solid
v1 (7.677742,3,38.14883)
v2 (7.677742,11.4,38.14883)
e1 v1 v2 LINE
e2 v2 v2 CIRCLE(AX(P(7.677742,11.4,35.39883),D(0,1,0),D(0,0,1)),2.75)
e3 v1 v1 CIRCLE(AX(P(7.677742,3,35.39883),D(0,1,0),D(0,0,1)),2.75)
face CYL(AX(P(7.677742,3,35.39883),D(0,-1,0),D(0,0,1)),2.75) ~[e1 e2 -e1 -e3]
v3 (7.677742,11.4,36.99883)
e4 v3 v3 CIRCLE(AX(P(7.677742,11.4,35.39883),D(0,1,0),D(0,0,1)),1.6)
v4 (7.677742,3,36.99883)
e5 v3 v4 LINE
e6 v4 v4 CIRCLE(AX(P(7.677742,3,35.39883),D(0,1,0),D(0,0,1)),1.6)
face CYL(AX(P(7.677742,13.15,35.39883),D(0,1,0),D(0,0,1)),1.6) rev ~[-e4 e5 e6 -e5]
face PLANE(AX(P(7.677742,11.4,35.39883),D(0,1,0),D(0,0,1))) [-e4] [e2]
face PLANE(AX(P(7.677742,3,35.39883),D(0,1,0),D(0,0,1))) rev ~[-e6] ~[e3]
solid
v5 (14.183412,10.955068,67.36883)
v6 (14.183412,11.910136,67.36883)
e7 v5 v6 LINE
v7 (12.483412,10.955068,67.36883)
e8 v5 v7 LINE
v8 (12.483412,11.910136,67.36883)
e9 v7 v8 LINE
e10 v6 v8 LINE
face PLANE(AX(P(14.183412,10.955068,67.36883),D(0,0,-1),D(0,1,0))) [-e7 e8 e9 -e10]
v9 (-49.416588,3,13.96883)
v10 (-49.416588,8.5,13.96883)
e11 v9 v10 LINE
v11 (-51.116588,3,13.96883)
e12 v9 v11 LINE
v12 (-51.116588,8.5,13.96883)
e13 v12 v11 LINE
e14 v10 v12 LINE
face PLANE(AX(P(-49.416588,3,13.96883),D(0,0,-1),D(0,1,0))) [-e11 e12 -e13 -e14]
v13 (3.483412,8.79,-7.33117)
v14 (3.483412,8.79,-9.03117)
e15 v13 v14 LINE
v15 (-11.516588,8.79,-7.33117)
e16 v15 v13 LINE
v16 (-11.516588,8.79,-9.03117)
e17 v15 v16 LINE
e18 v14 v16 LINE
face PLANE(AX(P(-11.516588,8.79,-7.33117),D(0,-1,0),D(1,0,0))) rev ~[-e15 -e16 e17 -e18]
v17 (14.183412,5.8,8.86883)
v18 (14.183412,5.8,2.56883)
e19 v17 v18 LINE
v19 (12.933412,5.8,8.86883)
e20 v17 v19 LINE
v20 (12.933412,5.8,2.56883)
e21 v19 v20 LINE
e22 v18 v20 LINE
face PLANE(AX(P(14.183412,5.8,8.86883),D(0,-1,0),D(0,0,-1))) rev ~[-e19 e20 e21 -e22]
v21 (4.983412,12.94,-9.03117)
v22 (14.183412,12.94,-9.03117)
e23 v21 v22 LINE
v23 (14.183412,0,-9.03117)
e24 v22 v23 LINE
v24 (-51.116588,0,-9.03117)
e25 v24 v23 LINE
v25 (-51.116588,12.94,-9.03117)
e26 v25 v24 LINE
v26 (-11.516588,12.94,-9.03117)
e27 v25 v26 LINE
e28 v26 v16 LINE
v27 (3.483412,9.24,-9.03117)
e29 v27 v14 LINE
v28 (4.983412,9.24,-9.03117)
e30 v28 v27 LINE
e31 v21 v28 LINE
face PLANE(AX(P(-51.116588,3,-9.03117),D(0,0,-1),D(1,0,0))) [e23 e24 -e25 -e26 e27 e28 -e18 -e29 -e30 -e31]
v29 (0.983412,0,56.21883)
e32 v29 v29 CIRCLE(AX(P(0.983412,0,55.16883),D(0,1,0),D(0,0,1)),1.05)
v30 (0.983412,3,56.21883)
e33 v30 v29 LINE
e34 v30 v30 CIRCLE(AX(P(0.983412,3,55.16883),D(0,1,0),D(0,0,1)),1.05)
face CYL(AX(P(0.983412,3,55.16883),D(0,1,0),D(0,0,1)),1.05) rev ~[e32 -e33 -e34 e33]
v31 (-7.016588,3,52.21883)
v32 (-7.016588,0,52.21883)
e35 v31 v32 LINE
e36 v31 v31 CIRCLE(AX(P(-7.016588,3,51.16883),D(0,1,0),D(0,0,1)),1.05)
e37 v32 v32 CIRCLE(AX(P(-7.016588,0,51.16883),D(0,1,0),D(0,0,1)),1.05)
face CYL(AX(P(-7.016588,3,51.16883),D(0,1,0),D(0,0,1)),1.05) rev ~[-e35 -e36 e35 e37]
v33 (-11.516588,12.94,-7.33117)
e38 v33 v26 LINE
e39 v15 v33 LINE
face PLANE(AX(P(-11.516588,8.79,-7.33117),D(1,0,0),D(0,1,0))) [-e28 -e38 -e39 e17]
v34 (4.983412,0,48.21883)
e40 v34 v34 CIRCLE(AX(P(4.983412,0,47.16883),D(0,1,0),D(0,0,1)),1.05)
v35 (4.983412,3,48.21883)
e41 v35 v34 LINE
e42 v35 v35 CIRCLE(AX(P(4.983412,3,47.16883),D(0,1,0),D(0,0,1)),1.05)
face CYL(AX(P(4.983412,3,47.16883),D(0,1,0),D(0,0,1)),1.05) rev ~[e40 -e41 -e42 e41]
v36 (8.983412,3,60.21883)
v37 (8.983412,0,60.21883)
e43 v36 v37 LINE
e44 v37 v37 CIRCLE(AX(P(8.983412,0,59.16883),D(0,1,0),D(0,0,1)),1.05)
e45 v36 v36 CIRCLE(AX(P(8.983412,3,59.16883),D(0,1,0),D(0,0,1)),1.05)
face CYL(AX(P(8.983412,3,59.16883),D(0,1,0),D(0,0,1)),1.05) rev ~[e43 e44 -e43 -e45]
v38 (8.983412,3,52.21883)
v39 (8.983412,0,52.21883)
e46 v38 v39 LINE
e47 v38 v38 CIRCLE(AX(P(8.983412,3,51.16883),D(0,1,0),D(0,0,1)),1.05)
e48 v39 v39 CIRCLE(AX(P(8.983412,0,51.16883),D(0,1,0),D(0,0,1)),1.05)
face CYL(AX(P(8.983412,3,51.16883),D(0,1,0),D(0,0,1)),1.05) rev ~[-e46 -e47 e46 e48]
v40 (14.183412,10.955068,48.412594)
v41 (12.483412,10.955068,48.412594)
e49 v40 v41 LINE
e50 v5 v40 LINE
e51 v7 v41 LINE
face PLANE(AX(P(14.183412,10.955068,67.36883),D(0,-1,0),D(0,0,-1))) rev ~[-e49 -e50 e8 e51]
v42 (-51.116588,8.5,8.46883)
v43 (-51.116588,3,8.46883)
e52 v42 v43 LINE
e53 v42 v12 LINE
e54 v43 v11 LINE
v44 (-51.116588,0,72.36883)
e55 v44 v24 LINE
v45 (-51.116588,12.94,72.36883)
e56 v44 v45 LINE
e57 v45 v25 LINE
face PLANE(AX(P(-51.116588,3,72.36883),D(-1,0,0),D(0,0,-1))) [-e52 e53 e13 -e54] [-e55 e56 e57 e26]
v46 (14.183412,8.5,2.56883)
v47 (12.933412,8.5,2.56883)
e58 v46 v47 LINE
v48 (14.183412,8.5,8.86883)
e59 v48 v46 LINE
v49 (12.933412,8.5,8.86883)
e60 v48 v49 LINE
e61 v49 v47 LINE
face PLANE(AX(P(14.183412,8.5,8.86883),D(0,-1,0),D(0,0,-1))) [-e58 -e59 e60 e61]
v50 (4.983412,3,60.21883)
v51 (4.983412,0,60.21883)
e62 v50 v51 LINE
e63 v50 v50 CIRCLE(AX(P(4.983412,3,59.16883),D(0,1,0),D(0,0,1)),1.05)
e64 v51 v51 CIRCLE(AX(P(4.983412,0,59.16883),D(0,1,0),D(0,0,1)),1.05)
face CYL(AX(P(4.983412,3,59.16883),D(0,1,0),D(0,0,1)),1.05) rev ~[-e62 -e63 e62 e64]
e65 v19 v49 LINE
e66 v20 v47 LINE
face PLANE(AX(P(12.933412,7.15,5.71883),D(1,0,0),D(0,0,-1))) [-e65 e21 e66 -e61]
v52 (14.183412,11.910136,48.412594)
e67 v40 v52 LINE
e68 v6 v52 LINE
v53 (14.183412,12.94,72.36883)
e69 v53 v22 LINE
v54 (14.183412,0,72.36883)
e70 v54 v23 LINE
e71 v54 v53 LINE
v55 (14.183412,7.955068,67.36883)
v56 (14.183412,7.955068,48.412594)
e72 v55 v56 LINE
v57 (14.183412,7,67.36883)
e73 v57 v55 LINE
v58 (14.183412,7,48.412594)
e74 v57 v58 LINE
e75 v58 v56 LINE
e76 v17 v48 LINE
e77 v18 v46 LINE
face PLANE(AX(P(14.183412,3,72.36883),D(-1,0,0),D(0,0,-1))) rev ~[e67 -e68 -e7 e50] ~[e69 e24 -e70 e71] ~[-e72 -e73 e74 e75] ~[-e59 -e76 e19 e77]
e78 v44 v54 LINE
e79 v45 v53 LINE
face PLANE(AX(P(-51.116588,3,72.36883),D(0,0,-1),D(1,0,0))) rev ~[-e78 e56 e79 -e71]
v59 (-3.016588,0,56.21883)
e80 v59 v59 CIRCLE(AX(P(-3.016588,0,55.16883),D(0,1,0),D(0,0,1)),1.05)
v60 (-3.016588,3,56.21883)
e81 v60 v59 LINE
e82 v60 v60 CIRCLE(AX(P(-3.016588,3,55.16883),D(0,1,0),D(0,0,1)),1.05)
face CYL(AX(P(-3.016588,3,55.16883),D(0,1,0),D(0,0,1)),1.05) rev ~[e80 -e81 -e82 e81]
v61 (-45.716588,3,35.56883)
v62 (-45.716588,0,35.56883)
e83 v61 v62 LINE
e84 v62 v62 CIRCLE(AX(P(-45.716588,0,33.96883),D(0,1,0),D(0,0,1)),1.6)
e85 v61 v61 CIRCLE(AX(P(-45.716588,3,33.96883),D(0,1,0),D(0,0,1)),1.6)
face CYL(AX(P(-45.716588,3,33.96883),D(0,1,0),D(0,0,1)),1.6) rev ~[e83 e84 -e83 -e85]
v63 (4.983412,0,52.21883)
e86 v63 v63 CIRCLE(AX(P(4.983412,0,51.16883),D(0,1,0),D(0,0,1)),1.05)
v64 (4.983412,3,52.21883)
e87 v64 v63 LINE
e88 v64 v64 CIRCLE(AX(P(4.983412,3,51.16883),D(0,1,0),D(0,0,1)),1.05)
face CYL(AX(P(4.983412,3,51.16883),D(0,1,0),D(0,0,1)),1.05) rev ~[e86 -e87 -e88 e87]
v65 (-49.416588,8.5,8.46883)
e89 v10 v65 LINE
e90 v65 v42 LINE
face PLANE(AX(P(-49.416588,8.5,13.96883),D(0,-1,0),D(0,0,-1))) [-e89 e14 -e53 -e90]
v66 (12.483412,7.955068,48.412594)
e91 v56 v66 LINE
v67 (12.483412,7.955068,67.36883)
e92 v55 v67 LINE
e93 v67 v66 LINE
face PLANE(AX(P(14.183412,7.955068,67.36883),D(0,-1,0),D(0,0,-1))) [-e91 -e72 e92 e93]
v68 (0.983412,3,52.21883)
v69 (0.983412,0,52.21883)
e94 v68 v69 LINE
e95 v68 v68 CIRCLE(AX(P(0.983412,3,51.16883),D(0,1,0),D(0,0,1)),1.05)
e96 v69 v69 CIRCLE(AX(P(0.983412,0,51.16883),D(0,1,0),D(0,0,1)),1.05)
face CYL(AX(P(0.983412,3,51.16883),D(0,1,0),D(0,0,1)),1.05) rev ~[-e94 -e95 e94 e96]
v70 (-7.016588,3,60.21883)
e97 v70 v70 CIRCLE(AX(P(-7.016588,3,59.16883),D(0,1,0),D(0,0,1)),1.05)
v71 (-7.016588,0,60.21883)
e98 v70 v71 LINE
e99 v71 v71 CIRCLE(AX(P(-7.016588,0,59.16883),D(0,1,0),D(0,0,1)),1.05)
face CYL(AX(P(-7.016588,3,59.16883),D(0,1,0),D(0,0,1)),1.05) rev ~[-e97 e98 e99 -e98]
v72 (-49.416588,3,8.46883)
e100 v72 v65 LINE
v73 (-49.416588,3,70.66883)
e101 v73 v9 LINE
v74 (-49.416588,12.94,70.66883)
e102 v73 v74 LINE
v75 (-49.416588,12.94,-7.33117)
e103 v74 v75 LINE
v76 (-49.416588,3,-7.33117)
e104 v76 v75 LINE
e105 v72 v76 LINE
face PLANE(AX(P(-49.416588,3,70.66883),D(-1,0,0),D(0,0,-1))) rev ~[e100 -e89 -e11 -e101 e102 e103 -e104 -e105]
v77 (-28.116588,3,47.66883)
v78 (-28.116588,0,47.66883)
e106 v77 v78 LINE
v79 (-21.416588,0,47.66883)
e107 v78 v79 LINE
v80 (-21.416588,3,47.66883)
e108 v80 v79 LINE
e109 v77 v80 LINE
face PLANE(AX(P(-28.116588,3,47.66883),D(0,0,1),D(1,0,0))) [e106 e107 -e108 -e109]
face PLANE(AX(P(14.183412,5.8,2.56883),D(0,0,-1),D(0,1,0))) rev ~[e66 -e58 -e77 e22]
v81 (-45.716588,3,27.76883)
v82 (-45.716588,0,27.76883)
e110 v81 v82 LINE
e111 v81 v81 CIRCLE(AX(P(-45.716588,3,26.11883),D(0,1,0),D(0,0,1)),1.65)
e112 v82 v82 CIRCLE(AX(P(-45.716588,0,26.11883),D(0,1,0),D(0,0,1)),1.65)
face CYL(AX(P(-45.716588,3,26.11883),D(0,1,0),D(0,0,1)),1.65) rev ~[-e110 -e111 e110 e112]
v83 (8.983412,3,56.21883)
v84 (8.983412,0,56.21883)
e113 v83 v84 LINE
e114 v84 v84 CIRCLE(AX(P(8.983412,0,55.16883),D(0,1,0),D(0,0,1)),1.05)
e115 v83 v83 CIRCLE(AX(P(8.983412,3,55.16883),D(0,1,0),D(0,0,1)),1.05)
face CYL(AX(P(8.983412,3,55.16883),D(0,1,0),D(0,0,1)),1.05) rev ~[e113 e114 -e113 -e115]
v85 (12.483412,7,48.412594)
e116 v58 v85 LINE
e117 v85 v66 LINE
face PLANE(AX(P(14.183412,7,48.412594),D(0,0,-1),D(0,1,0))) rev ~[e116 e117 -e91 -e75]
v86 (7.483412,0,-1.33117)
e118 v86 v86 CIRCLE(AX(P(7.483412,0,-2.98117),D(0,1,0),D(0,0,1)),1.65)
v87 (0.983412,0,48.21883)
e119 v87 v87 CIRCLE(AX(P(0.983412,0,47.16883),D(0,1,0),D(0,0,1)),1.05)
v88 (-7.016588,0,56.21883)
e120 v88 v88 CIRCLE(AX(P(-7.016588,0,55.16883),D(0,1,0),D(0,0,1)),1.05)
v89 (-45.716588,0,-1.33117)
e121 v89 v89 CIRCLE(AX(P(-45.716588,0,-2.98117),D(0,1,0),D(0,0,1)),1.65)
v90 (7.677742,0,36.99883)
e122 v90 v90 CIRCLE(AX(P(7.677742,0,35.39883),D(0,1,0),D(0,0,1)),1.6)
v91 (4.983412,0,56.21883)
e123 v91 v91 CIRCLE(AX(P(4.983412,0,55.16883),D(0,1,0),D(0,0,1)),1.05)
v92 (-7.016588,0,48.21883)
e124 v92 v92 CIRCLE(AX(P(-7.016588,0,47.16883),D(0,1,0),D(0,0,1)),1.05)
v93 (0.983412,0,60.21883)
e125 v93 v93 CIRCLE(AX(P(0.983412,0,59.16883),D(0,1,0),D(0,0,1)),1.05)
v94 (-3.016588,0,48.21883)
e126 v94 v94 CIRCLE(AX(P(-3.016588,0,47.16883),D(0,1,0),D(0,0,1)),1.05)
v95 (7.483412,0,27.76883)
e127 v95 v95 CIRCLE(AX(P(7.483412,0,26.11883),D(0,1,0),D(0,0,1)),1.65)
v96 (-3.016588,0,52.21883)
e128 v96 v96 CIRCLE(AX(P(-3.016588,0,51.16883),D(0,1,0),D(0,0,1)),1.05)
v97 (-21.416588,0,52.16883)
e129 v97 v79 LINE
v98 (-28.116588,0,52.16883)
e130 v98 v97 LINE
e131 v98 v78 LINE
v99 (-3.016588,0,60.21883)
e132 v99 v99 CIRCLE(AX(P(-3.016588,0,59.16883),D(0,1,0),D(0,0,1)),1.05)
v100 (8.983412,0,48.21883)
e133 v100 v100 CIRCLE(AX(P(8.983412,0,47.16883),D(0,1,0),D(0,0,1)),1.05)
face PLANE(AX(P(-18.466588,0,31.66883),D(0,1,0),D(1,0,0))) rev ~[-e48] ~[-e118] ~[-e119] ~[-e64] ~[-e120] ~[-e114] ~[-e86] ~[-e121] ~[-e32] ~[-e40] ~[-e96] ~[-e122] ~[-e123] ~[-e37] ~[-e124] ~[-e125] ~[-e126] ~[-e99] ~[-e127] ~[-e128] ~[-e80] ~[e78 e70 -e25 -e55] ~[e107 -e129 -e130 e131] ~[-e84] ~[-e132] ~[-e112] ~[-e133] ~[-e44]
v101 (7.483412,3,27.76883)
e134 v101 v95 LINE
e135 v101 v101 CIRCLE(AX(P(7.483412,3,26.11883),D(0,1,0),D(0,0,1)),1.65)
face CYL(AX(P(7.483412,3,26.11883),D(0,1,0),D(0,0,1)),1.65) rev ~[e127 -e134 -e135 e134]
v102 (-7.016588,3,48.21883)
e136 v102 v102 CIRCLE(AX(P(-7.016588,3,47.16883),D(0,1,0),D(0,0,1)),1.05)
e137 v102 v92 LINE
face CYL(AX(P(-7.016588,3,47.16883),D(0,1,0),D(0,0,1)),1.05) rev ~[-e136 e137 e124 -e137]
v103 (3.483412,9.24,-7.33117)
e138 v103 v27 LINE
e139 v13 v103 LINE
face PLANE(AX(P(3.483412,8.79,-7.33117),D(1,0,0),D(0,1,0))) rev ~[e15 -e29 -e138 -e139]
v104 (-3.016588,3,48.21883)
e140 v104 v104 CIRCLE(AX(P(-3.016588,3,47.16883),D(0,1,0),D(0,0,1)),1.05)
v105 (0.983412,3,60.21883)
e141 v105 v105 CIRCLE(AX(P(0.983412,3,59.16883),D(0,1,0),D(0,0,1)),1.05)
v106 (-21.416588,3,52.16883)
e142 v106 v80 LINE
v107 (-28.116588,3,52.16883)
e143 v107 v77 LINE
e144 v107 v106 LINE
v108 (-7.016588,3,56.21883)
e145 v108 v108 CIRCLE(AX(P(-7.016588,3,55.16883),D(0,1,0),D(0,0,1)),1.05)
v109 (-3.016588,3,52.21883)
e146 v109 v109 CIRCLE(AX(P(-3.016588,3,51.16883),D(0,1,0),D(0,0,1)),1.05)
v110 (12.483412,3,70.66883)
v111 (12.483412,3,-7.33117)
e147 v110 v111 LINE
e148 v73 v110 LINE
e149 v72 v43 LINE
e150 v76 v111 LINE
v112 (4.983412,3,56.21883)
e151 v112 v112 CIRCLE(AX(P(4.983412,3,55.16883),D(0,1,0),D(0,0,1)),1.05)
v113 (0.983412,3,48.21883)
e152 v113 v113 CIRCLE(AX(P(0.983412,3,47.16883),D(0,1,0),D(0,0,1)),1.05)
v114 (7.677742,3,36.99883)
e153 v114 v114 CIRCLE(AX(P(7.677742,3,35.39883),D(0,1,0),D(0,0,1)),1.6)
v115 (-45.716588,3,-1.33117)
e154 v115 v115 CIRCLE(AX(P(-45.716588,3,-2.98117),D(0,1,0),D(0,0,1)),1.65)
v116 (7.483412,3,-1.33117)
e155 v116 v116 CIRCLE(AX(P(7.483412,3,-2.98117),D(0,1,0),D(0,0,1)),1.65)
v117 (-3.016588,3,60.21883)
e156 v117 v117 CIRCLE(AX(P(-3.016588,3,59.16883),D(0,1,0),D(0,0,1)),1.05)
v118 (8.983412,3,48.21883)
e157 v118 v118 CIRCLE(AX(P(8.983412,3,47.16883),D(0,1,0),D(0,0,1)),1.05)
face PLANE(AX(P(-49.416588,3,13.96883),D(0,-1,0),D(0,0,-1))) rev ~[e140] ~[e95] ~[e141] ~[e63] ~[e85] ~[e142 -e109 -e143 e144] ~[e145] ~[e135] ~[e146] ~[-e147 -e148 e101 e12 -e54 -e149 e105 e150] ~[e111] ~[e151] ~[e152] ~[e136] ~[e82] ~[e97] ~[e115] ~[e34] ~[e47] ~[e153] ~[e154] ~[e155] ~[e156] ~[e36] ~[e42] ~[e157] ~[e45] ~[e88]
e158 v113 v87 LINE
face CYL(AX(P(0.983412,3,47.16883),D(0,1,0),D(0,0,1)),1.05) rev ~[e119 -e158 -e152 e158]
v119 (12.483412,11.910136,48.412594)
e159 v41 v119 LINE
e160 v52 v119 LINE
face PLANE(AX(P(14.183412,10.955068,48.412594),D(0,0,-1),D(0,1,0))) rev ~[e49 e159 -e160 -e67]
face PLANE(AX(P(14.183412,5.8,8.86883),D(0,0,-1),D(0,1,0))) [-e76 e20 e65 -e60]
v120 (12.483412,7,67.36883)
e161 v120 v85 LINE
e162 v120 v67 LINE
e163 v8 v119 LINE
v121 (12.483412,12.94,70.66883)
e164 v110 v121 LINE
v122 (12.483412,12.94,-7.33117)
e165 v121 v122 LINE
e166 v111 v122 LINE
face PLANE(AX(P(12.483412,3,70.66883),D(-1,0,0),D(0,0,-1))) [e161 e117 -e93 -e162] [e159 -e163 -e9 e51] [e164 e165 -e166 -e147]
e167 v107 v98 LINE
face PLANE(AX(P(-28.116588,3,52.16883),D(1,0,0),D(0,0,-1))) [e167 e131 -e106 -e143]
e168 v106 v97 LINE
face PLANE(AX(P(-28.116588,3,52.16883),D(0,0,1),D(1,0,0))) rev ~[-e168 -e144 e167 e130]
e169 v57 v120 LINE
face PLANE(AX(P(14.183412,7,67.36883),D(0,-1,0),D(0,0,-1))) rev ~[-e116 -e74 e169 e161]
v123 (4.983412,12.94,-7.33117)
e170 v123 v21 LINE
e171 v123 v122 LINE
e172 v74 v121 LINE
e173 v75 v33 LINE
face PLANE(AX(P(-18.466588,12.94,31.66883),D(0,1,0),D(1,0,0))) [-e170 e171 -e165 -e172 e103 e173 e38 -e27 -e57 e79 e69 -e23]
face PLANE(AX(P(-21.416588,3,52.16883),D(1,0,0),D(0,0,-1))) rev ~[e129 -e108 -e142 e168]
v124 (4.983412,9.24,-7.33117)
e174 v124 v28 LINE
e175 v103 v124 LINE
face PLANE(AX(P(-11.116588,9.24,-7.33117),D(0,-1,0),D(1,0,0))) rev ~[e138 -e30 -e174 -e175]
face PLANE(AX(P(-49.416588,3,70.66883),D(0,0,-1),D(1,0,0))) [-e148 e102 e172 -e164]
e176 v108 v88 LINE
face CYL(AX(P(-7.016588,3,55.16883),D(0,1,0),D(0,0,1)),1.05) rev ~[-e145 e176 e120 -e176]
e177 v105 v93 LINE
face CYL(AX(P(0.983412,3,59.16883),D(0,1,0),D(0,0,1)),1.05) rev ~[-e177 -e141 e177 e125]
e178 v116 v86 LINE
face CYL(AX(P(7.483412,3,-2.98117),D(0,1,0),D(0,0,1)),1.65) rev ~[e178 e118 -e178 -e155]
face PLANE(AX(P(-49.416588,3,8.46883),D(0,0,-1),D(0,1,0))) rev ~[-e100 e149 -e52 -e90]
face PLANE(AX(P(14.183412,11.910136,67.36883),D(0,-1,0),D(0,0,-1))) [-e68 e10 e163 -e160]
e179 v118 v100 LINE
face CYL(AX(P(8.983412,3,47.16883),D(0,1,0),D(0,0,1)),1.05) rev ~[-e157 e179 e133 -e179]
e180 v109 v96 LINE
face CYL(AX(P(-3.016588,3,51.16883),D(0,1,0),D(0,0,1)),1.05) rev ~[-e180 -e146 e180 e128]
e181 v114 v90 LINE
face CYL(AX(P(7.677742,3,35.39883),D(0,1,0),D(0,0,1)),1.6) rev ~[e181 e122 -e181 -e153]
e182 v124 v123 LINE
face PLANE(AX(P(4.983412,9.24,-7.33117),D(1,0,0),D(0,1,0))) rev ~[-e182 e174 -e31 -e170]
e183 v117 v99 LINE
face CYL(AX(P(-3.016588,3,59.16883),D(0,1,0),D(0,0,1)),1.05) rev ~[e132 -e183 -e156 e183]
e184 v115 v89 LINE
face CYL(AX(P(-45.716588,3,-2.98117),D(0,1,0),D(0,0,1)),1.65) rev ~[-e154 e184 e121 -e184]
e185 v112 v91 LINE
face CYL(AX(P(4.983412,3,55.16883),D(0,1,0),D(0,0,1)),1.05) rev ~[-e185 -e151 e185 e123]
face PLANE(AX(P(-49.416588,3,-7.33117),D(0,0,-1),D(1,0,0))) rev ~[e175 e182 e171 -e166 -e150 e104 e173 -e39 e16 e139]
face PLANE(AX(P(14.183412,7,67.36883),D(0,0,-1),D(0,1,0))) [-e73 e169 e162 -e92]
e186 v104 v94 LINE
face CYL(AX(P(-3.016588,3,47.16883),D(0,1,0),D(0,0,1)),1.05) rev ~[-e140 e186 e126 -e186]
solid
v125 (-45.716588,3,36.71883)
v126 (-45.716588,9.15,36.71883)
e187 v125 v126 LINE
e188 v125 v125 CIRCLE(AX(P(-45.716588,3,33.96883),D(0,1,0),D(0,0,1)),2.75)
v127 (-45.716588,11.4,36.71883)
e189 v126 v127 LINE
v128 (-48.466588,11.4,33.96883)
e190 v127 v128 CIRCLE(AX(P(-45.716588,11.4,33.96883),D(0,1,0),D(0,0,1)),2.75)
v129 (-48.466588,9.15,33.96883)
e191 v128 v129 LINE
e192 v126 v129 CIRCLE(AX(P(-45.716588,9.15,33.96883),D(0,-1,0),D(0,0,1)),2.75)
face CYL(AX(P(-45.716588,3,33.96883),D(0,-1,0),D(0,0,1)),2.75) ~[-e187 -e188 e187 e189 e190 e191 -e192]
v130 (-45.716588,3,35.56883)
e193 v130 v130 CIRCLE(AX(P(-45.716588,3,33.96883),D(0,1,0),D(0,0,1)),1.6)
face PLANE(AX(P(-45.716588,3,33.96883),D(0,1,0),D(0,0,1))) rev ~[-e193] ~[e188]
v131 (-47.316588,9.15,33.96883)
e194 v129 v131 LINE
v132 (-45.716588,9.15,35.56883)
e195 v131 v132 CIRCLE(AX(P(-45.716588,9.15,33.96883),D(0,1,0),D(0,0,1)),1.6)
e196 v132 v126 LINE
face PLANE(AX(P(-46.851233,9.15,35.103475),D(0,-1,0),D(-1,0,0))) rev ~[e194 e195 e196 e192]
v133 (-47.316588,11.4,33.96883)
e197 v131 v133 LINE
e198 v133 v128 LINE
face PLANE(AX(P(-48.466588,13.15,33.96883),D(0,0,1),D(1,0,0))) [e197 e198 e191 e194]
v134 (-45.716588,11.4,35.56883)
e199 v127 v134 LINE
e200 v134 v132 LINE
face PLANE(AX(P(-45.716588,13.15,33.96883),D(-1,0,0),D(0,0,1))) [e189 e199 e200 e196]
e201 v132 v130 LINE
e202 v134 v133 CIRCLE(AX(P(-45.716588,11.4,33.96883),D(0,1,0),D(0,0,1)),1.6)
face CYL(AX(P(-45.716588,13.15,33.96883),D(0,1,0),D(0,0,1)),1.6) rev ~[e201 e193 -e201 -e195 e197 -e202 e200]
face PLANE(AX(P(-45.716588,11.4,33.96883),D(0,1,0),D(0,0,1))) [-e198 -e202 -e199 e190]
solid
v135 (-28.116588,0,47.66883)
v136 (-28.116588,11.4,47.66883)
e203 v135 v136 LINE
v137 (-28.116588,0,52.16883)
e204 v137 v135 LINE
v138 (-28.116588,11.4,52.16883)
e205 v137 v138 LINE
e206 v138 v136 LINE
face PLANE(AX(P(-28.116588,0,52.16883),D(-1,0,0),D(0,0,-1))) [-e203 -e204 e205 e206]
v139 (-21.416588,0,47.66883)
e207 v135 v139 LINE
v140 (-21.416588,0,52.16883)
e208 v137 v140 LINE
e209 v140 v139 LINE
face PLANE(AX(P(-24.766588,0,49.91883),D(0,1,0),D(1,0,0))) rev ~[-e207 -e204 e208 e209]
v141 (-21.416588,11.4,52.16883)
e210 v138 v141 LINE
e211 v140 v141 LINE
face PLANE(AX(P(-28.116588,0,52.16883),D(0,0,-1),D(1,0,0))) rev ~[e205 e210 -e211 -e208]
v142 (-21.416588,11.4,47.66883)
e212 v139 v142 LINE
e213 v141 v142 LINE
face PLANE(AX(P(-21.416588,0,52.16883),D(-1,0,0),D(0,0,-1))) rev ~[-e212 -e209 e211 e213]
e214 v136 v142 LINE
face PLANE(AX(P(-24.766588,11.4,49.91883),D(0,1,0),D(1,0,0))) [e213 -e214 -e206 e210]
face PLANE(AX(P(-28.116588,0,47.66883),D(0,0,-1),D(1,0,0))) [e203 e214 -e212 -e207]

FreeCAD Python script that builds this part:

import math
import FreeCAD as App
import Part
import Sketcher


def add_polygon(sketch, points):
    """Adds a closed chain of lines whose ends are joined by coincident constraints."""
    first, n = sketch.GeometryCount, len(points)
    for a, b in zip(points, points[1:] + points[:1]):
        sketch.addGeometry(Part.LineSegment(App.Vector(*a, 0), App.Vector(*b, 0)), False)
    for i in range(n):
        sketch.addConstraint(Sketcher.Constraint("Coincident", first + i, 2, first + (i + 1) % n, 1))

doc = App.newDocument("Part")
body = doc.addObject("PartDesign::Body", "Body")

# Sketch on XZ plane
sketch1 = doc.addObject("Sketcher::SketchObject", "Sketch")
body.addObject(sketch1)
sketch1.AttachmentSupport = (doc.XZ_Plane, [""])
sketch1.MapMode = "FlatFace"
add_polygon(sketch1, [(-51.116588, -9.03117), (-51.116588, 72.36883), (14.183412, 72.36883), (14.183412, -9.03117)])  # lines 0-3
sketch1.addConstraint([
    Sketcher.Constraint("Vertical", 0),
    Sketcher.Constraint("Horizontal", 1),
    Sketcher.Constraint("Vertical", 2),
    Sketcher.Constraint("Horizontal", 3),
    Sketcher.Constraint("DistanceX", 1, 1, 1, 2, 65.3),
    Sketcher.Constraint("DistanceY", 0, 1, 0, 2, 81.4),
    Sketcher.Constraint("DistanceX", 0, 2, -1, 1, 51.116588),
    Sketcher.Constraint("DistanceY", -1, 1, 0, 2, 72.36883),
])
pad1 = doc.addObject("PartDesign::Pad", "Pad")
body.addObject(pad1)
pad1.Profile = sketch1
pad1.Length = 3
pad1.Reversed = True

# Sketch on XZ plane
sketch2 = doc.addObject("Sketcher::SketchObject", "Sketch001")
body.addObject(sketch2)
sketch2.AttachmentSupport = (doc.XZ_Plane, [""])
sketch2.MapMode = "FlatFace"
sketch2.AttachmentOffset = App.Placement(App.Vector(0, 0, -3), App.Rotation())
add_polygon(sketch2, [(-51.116588, -9.03117), (-51.116588, 72.36883), (14.183412, 72.36883), (14.183412, -9.03117)])  # lines 0-3
add_polygon(sketch2, [(12.483412, 70.66883), (-49.416588, 70.66883), (-49.416588, -7.33117), (12.483412, -7.33117)])  # lines 4-7
sketch2.addConstraint([
    Sketcher.Constraint("Vertical", 0),
    Sketcher.Constraint("Horizontal", 1),
    Sketcher.Constraint("Vertical", 2),
    Sketcher.Constraint("Horizontal", 3),
    Sketcher.Constraint("Horizontal", 4),
    Sketcher.Constraint("Vertical", 5),
    Sketcher.Constraint("Horizontal", 6),
    Sketcher.Constraint("Vertical", 7),
    Sketcher.Constraint("DistanceY", 5, 2, 5, 1, 78.0),
    Sketcher.Constraint("DistanceX", 1, 1, 1, 2, 65.3),
    Sketcher.Constraint("DistanceX", 4, 2, 4, 1, 61.9),
    Sketcher.Constraint("DistanceY", 0, 1, 0, 2, 81.4),
    Sketcher.Constraint("DistanceX", 0, 2, 4, 2, 1.7),
    Sketcher.Constraint("DistanceY", 4, 2, 0, 2, 1.7),
    Sketcher.Constraint("DistanceX", 0, 2, -1, 1, 51.116588),
    Sketcher.Constraint("DistanceY", -1, 1, 0, 2, 72.36883),
])
pad2 = doc.addObject("PartDesign::Pad", "Pad001")
body.addObject(pad2)
pad2.Profile = sketch2
pad2.Length = 9.94
pad2.Reversed = True

# Sketch on XZ plane
sketch3 = doc.addObject("Sketcher::SketchObject", "Sketch002")
body.addObject(sketch3)
sketch3.AttachmentSupport = (doc.XZ_Plane, [""])
sketch3.MapMode = "FlatFace"
sketch3.AttachmentOffset = App.Placement(App.Vector(0, 0, -3), App.Rotation())
sketch3.addGeometry(Part.Circle(App.Vector(-45.716588, -2.98117, 0), App.Vector(0, 0, 1), 1.65), False)  # 0
sketch3.addGeometry(Part.Circle(App.Vector(-45.716588, 26.11883, 0), App.Vector(0, 0, 1), 1.65), False)  # 1
sketch3.addGeometry(Part.Circle(App.Vector(7.483412, -2.98117, 0), App.Vector(0, 0, 1), 1.65), False)  # 2
sketch3.addGeometry(Part.Circle(App.Vector(7.483412, 26.11883, 0), App.Vector(0, 0, 1), 1.65), False)  # 3
sketch3.addGeometry(Part.Circle(App.Vector(-45.716588, 33.96883, 0), App.Vector(0, 0, 1), 1.6), False)  # 4
sketch3.addGeometry(Part.Circle(App.Vector(7.677742, 35.39883, 0), App.Vector(0, 0, 1), 1.6), False)  # 5
add_polygon(sketch3, [(-28.116588, 47.66883), (-28.116588, 52.16883), (-21.416588, 52.16883), (-21.416588, 47.66883)])  # lines 6-9
sketch3.addConstraint([
    Sketcher.Constraint("Vertical", 6),
    Sketcher.Constraint("Horizontal", 7),
    Sketcher.Constraint("Vertical", 8),
    Sketcher.Constraint("Horizontal", 9),
    Sketcher.Constraint("Equal", 0, 1),
    Sketcher.Constraint("Equal", 1, 2),
    Sketcher.Constraint("Equal", 2, 3),
    Sketcher.Constraint("Equal", 4, 5),
    Sketcher.Constraint("Horizontal", 0, 3, 2, 3),
    Sketcher.Constraint("Horizontal", 1, 3, 3, 3),
    Sketcher.Constraint("Vertical", 0, 3, 1, 3),
    Sketcher.Constraint("Vertical", 2, 3, 3, 3),
    Sketcher.Constraint("Vertical", 1, 3, 4, 3),
    Sketcher.Constraint("Diameter", 0, 3.3),
    Sketcher.Constraint("Diameter", 4, 3.2),
    Sketcher.Constraint("DistanceX", 7, 1, 7, 2, 6.7),
    Sketcher.Constraint("DistanceY", 6, 1, 6, 2, 4.5),
    Sketcher.Constraint("DistanceY", 0, 3, 1, 3, 29.1),
    Sketcher.Constraint("DistanceX", 0, 3, 2, 3, 53.2),
    Sketcher.Constraint("DistanceX", 4, 3, 6, 2, 17.6),
    Sketcher.Constraint("DistanceY", 4, 3, 6, 2, 18.2),
    Sketcher.Constraint("DistanceY", 1, 3, 4, 3, 7.85),
    Sketcher.Constraint("DistanceY", 3, 3, 5, 3, 9.28),
    Sketcher.Constraint("DistanceX", 0, 3, -1, 1, 45.716588),
    Sketcher.Constraint("DistanceY", 0, 3, -1, 1, 2.98117),
    Sketcher.Constraint("DistanceX", 3, 3, 5, 3, 0.19433),
])
pocket1 = doc.addObject("PartDesign::Pocket", "Pocket")
body.addObject(pocket1)
pocket1.Profile = sketch3
pocket1.Type = "ThroughAll"
pocket1.Reversed = True

# Sketch on YZ plane
sketch4 = doc.addObject("Sketcher::SketchObject", "Sketch003")
body.addObject(sketch4)
sketch4.AttachmentSupport = (doc.YZ_Plane, [""])
sketch4.MapMode = "FlatFace"
sketch4.AttachmentOffset = App.Placement(App.Vector(0, 0, -49.416588), App.Rotation())
add_polygon(sketch4, [(8.5, 13.96883), (3, 13.96883), (3, 8.46883), (8.5, 8.46883)])  # lines 0-3
sketch4.addConstraint([
    Sketcher.Constraint("Horizontal", 0),
    Sketcher.Constraint("Vertical", 1),
    Sketcher.Constraint("Horizontal", 2),
    Sketcher.Constraint("Vertical", 3),
    Sketcher.Constraint("Equal", 2, 1),
    Sketcher.Constraint("DistanceX", 0, 2, 0, 1, 5.5),
    Sketcher.Constraint("DistanceX", -1, 1, 0, 2, 3.0),
    Sketcher.Constraint("DistanceY", -1, 1, 0, 2, 13.96883),
])
pocket2 = doc.addObject("PartDesign::Pocket", "Pocket001")
body.addObject(pocket2)
pocket2.Profile = sketch4
pocket2.Type = "ThroughAll"

# Sketch on XY plane
sketch5 = doc.addObject("Sketcher::SketchObject", "Sketch004")
body.addObject(sketch5)
sketch5.AttachmentSupport = (doc.XY_Plane, [""])
sketch5.MapMode = "FlatFace"
sketch5.AttachmentOffset = App.Placement(App.Vector(0, 0, -7.33117), App.Rotation())
add_polygon(sketch5, [(-11.516588, 12.94), (-11.516588, 8.79), (3.483412, 8.79), (3.483412, 12.94)])  # lines 0-3
sketch5.addConstraint([
    Sketcher.Constraint("Vertical", 0),
    Sketcher.Constraint("Horizontal", 1),
    Sketcher.Constraint("Vertical", 2),
    Sketcher.Constraint("Horizontal", 3),
    Sketcher.Constraint("DistanceX", 1, 1, 1, 2, 15.0),
    Sketcher.Constraint("DistanceY", 0, 2, 0, 1, 4.15),
    Sketcher.Constraint("DistanceY", -1, 1, 0, 2, 8.79),
    Sketcher.Constraint("DistanceX", 0, 2, -1, 1, 11.516588),
])
pocket3 = doc.addObject("PartDesign::Pocket", "Pocket002")
body.addObject(pocket3)
pocket3.Profile = sketch5
pocket3.Type = "ThroughAll"

# Sketch on XZ plane
sketch6 = doc.addObject("Sketcher::SketchObject", "Sketch005")
body.addObject(sketch6)
sketch6.AttachmentSupport = (doc.XZ_Plane, [""])
sketch6.MapMode = "FlatFace"
sketch6.AttachmentOffset = App.Placement(App.Vector(0, 0, -3), App.Rotation())
sketch6.addGeometry([
    Part.Circle(App.Vector(-7.016588, 47.16883, 0), App.Vector(0, 0, 1), 1.05),  # 0
    Part.Circle(App.Vector(-3.016588, 47.16883, 0), App.Vector(0, 0, 1), 1.05),  # 1
    Part.Circle(App.Vector(0.983412, 47.16883, 0), App.Vector(0, 0, 1), 1.05),  # 2
    Part.Circle(App.Vector(4.983412, 47.16883, 0), App.Vector(0, 0, 1), 1.05),  # 3
    Part.Circle(App.Vector(8.983412, 47.16883, 0), App.Vector(0, 0, 1), 1.05),  # 4
    Part.Circle(App.Vector(-3.016588, 51.16883, 0), App.Vector(0, 0, 1), 1.05),  # 5
    Part.Circle(App.Vector(0.983412, 51.16883, 0), App.Vector(0, 0, 1), 1.05),  # 6
    Part.Circle(App.Vector(4.983412, 51.16883, 0), App.Vector(0, 0, 1), 1.05),  # 7
    Part.Circle(App.Vector(8.983412, 51.16883, 0), App.Vector(0, 0, 1), 1.05),  # 8
    Part.Circle(App.Vector(-3.016588, 55.16883, 0), App.Vector(0, 0, 1), 1.05),  # 9
    Part.Circle(App.Vector(0.983412, 55.16883, 0), App.Vector(0, 0, 1), 1.05),  # 10
    Part.Circle(App.Vector(4.983412, 55.16883, 0), App.Vector(0, 0, 1), 1.05),  # 11
    Part.Circle(App.Vector(8.983412, 55.16883, 0), App.Vector(0, 0, 1), 1.05),  # 12
    Part.Circle(App.Vector(-3.016588, 59.16883, 0), App.Vector(0, 0, 1), 1.05),  # 13
    Part.Circle(App.Vector(0.983412, 59.16883, 0), App.Vector(0, 0, 1), 1.05),  # 14
    Part.Circle(App.Vector(4.983412, 59.16883, 0), App.Vector(0, 0, 1), 1.05),  # 15
    Part.Circle(App.Vector(8.983412, 59.16883, 0), App.Vector(0, 0, 1), 1.05),  # 16
    Part.Circle(App.Vector(-7.016588, 51.16883, 0), App.Vector(0, 0, 1), 1.05),  # 17
    Part.Circle(App.Vector(-7.016588, 55.16883, 0), App.Vector(0, 0, 1), 1.05),  # 18
    Part.Circle(App.Vector(-7.016588, 59.16883, 0), App.Vector(0, 0, 1), 1.05),  # 19
], False)
sketch6.addConstraint([
    Sketcher.Constraint("Equal", 0, 1),
    Sketcher.Constraint("Equal", 1, 2),
    Sketcher.Constraint("Equal", 2, 3),
    Sketcher.Constraint("Equal", 3, 4),
    Sketcher.Constraint("Equal", 4, 5),
    Sketcher.Constraint("Equal", 5, 6),
    Sketcher.Constraint("Equal", 6, 7),
    Sketcher.Constraint("Equal", 7, 8),
    Sketcher.Constraint("Equal", 8, 9),
    Sketcher.Constraint("Equal", 9, 10),
    Sketcher.Constraint("Equal", 10, 11),
    Sketcher.Constraint("Equal", 11, 12),
    Sketcher.Constraint("Equal", 12, 13),
    Sketcher.Constraint("Equal", 13, 14),
    Sketcher.Constraint("Equal", 14, 15),
    Sketcher.Constraint("Equal", 15, 16),
    Sketcher.Constraint("Equal", 16, 17),
    Sketcher.Constraint("Equal", 17, 18),
    Sketcher.Constraint("Equal", 18, 19),
    Sketcher.Constraint("Horizontal", 0, 3, 1, 3),
    Sketcher.Constraint("Horizontal", 1, 3, 2, 3),
    Sketcher.Constraint("Horizontal", 2, 3, 3, 3),
    Sketcher.Constraint("Horizontal", 3, 3, 4, 3),
    Sketcher.Constraint("Horizontal", 5, 3, 6, 3),
    Sketcher.Constraint("Horizontal", 6, 3, 7, 3),
    Sketcher.Constraint("Horizontal", 7, 3, 8, 3),
    Sketcher.Constraint("Horizontal", 9, 3, 10, 3),
    Sketcher.Constraint("Horizontal", 10, 3, 11, 3),
    Sketcher.Constraint("Horizontal", 11, 3, 12, 3),
    Sketcher.Constraint("Horizontal", 13, 3, 14, 3),
    Sketcher.Constraint("Horizontal", 14, 3, 15, 3),
    Sketcher.Constraint("Horizontal", 15, 3, 16, 3),
    Sketcher.Constraint("Horizontal", 8, 3, 17, 3),
    Sketcher.Constraint("Horizontal", 12, 3, 18, 3),
    Sketcher.Constraint("Horizontal", 16, 3, 19, 3),
    Sketcher.Constraint("Vertical", 1, 3, 5, 3),
    Sketcher.Constraint("Vertical", 2, 3, 6, 3),
    Sketcher.Constraint("Vertical", 3, 3, 7, 3),
    Sketcher.Constraint("Vertical", 4, 3, 8, 3),
    Sketcher.Constraint("Vertical", 5, 3, 9, 3),
    Sketcher.Constraint("Vertical", 6, 3, 10, 3),
    Sketcher.Constraint("Vertical", 7, 3, 11, 3),
    Sketcher.Constraint("Vertical", 8, 3, 12, 3),
    Sketcher.Constraint("Vertical", 9, 3, 13, 3),
    Sketcher.Constraint("Vertical", 10, 3, 14, 3),
    Sketcher.Constraint("Vertical", 11, 3, 15, 3),
    Sketcher.Constraint("Vertical", 12, 3, 16, 3),
    Sketcher.Constraint("Vertical", 0, 3, 17, 3),
    Sketcher.Constraint("Vertical", 17, 3, 18, 3),
    Sketcher.Constraint("Vertical", 18, 3, 19, 3),
    Sketcher.Constraint("Diameter", 0, 2.1),
    Sketcher.Constraint("DistanceX", 0, 3, 1, 3, 4.0),
    Sketcher.Constraint("DistanceX", 1, 3, 2, 3, 4.0),
    Sketcher.Constraint("DistanceX", 2, 3, 3, 3, 4.0),
    Sketcher.Constraint("DistanceX", 3, 3, 4, 3, 4.0),
    Sketcher.Constraint("DistanceY", 1, 3, 5, 3, 4.0),
    Sketcher.Constraint("DistanceY", 5, 3, 9, 3, 4.0),
    Sketcher.Constraint("DistanceY", 9, 3, 13, 3, 4.0),
    Sketcher.Constraint("DistanceX", 0, 3, -1, 1, 7.016588),
    Sketcher.Constraint("DistanceY", -1, 1, 0, 3, 47.16883),
])
pocket4 = doc.addObject("PartDesign::Pocket", "Pocket003")
body.addObject(pocket4)
pocket4.Profile = sketch6
pocket4.Type = "ThroughAll"
pocket4.Reversed = True

# Sketch on YZ plane
sketch7 = doc.addObject("Sketcher::SketchObject", "Sketch006")
body.addObject(sketch7)
sketch7.AttachmentSupport = (doc.YZ_Plane, [""])
sketch7.MapMode = "FlatFace"
sketch7.AttachmentOffset = App.Placement(App.Vector(0, 0, 14.183412), App.Rotation())
add_polygon(sketch7, [(8.5, 8.86883), (5.8, 8.86883), (5.8, 2.56883), (8.5, 2.56883)])  # lines 0-3
sketch7.addConstraint([
    Sketcher.Constraint("Horizontal", 0),
    Sketcher.Constraint("Vertical", 1),
    Sketcher.Constraint("Horizontal", 2),
    Sketcher.Constraint("Vertical", 3),
    Sketcher.Constraint("DistanceX", 0, 2, 0, 1, 2.7),
    Sketcher.Constraint("DistanceY", 1, 2, 1, 1, 6.3),
    Sketcher.Constraint("DistanceX", -1, 1, 0, 2, 5.8),
    Sketcher.Constraint("DistanceY", -1, 1, 0, 2, 8.86883),
])
pocket5 = doc.addObject("PartDesign::Pocket", "Pocket004")
body.addObject(pocket5)
pocket5.Profile = sketch7
pocket5.Length = 1.25

# Sketch on XY plane
sketch8 = doc.addObject("Sketcher::SketchObject", "Sketch007")
body.addObject(sketch8)
sketch8.AttachmentSupport = (doc.XY_Plane, [""])
sketch8.MapMode = "FlatFace"
sketch8.AttachmentOffset = App.Placement(App.Vector(0, 0, -7.33117), App.Rotation())
add_polygon(sketch8, [(-11.116588, 12.94), (-11.116588, 9.24), (4.983412, 9.24), (4.983412, 12.94)])  # lines 0-3
sketch8.addConstraint([
    Sketcher.Constraint("Vertical", 0),
    Sketcher.Constraint("Horizontal", 1),
    Sketcher.Constraint("Vertical", 2),
    Sketcher.Constraint("Horizontal", 3),
    Sketcher.Constraint("DistanceX", 1, 1, 1, 2, 16.1),
    Sketcher.Constraint("DistanceY", 0, 2, 0, 1, 3.7),
    Sketcher.Constraint("DistanceY", -1, 1, 0, 2, 9.24),
    Sketcher.Constraint("DistanceX", 0, 2, -1, 1, 11.116588),
])
pocket6 = doc.addObject("PartDesign::Pocket", "Pocket005")
body.addObject(pocket6)
pocket6.Profile = sketch8
pocket6.Type = "ThroughAll"

# Sketch on YZ plane
sketch9 = doc.addObject("Sketcher::SketchObject", "Sketch008")
body.addObject(sketch9)
sketch9.AttachmentSupport = (doc.YZ_Plane, [""])
sketch9.MapMode = "FlatFace"
sketch9.AttachmentOffset = App.Placement(App.Vector(0, 0, 14.183412), App.Rotation())
add_polygon(sketch9, [(11.910136, 67.36883), (10.955068, 67.36883), (10.955068, 48.412594), (11.910136, 48.412594)])  # lines 0-3
add_polygon(sketch9, [(7.955068, 67.36883), (7, 67.36883), (7, 48.412594), (7.955068, 48.412594)])  # lines 4-7
sketch9.addConstraint([
    Sketcher.Constraint("Horizontal", 0),
    Sketcher.Constraint("Vertical", 1),
    Sketcher.Constraint("Horizontal", 2),
    Sketcher.Constraint("Vertical", 3),
    Sketcher.Constraint("Horizontal", 4),
    Sketcher.Constraint("Vertical", 5),
    Sketcher.Constraint("Horizontal", 6),
    Sketcher.Constraint("Vertical", 7),
    Sketcher.Constraint("Horizontal", 3, 2, 4, 2),
    Sketcher.Constraint("Horizontal", 2, 2, 5, 2),
    Sketcher.Constraint("Equal", 2, 4),
    Sketcher.Constraint("DistanceX", -1, 1, 4, 2, 7.0),
    Sketcher.Constraint("DistanceX", 6, 2, 1, 2, 3.0),
    Sketcher.Constraint("DistanceX", 0, 2, 0, 1, 0.955068),
    Sketcher.Constraint("DistanceY", 1, 2, 1, 1, 18.956236),
    Sketcher.Constraint("DistanceY", -1, 1, 0, 2, 67.36883),
])
pocket7 = doc.addObject("PartDesign::Pocket", "Pocket006")
body.addObject(pocket7)
pocket7.Profile = sketch9
pocket7.Length = 1.7
body2 = doc.addObject("PartDesign::Body", "Body001")

# Sketch on XZ plane
sketch10 = doc.addObject("Sketcher::SketchObject", "Sketch009")
body2.addObject(sketch10)
sketch10.AttachmentSupport = (doc.getObject("XZ_Plane001"), [""])
sketch10.MapMode = "FlatFace"
sketch10.AttachmentOffset = App.Placement(App.Vector(0, 0, -3), App.Rotation())
add_polygon(sketch10, [(-28.116588, 47.66883), (-28.116588, 52.16883), (-21.416588, 52.16883), (-21.416588, 47.66883)])  # lines 0-3
sketch10.addConstraint([
    Sketcher.Constraint("Vertical", 0),
    Sketcher.Constraint("Horizontal", 1),
    Sketcher.Constraint("Vertical", 2),
    Sketcher.Constraint("Horizontal", 3),
    Sketcher.Constraint("DistanceX", 1, 1, 1, 2, 6.7),
    Sketcher.Constraint("DistanceY", 0, 1, 0, 2, 4.5),
    Sketcher.Constraint("DistanceX", 0, 2, -1, 1, 28.116588),
    Sketcher.Constraint("DistanceY", -1, 1, 0, 2, 52.16883),
])
pad3 = doc.addObject("PartDesign::Pad", "Pad002")
body2.addObject(pad3)
pad3.Profile = sketch10
pad3.Type = "TwoLengths"
pad3.Length = 10.15
pad3.Length2 = 3
pad3.Reversed = True

# Sketch on XZ plane
sketch11 = doc.addObject("Sketcher::SketchObject", "Sketch010")
body2.addObject(sketch11)
sketch11.AttachmentSupport = (doc.getObject("XZ_Plane001"), [""])
sketch11.MapMode = "FlatFace"
sketch11.AttachmentOffset = App.Placement(App.Vector(0, 0, -13.15), App.Rotation())
add_polygon(sketch11, [(-28.116588, 47.66883), (-28.116588, 52.16883), (-21.416588, 52.16883), (-21.416588, 47.66883)])  # lines 0-3
sketch11.addConstraint([
    Sketcher.Constraint("Vertical", 0),
    Sketcher.Constraint("Horizontal", 1),
    Sketcher.Constraint("Vertical", 2),
    Sketcher.Constraint("Horizontal", 3),
    Sketcher.Constraint("DistanceX", 1, 1, 1, 2, 6.7),
    Sketcher.Constraint("DistanceY", 0, 1, 0, 2, 4.5),
    Sketcher.Constraint("DistanceX", 0, 2, -1, 1, 28.116588),
    Sketcher.Constraint("DistanceY", -1, 1, 0, 2, 52.16883),
])
pocket8 = doc.addObject("PartDesign::Pocket", "Pocket007")
body2.addObject(pocket8)
pocket8.Profile = sketch11
pocket8.Length = 1.75
pocket8.Reversed = True
body3 = doc.addObject("PartDesign::Body", "Body002")

# Sketch on XZ plane
sketch12 = doc.addObject("Sketcher::SketchObject", "Sketch011")
body3.addObject(sketch12)
sketch12.AttachmentSupport = (doc.getObject("XZ_Plane002"), [""])
sketch12.MapMode = "FlatFace"
sketch12.AttachmentOffset = App.Placement(App.Vector(0, 0, -3), App.Rotation())
sketch12.addGeometry(Part.Circle(App.Vector(-45.716588, 33.96883, 0), App.Vector(0, 0, 1), 2.75), False)
sketch12.addConstraint([
    Sketcher.Constraint("Diameter", 0, 5.5),
    Sketcher.Constraint("DistanceX", 0, 3, -1, 1, 45.716588),
    Sketcher.Constraint("DistanceY", -1, 1, 0, 3, 33.96883),
])
pad4 = doc.addObject("PartDesign::Pad", "Pad003")
body3.addObject(pad4)
pad4.Profile = sketch12
pad4.Length = 10.15
pad4.Reversed = True

# Sketch on XZ plane
sketch13 = doc.addObject("Sketcher::SketchObject", "Sketch012")
body3.addObject(sketch13)
sketch13.AttachmentSupport = (doc.getObject("XZ_Plane002"), [""])
sketch13.MapMode = "FlatFace"
sketch13.AttachmentOffset = App.Placement(App.Vector(0, 0, -13.15), App.Rotation())
sketch13.addGeometry([
    Part.LineSegment(App.Vector(-45.716588, 33.96883, 0), App.Vector(-48.466588, 33.96883, 0)),
    Part.ArcOfCircle(Part.Circle(App.Vector(-45.716588, 33.96883, 0), App.Vector(0, 0, 1), 2.75), math.radians(90), math.radians(180)),
    Part.LineSegment(App.Vector(-45.716588, 36.71883, 0), App.Vector(-45.716588, 33.96883, 0)),
], False)
sketch13.addConstraint([
    Sketcher.Constraint("Coincident", 0, 2, 1, 2),
    Sketcher.Constraint("Coincident", 1, 1, 2, 1),
    Sketcher.Constraint("Coincident", 2, 2, 0, 1),
    Sketcher.Constraint("Horizontal", 0),
    Sketcher.Constraint("Vertical", 2),
    Sketcher.Constraint("Coincident", 2, 2, 1, 3),
    Sketcher.Constraint("Radius", 1, 2.75),
    Sketcher.Constraint("DistanceX", 1, 3, -1, 1, 45.716588),
    Sketcher.Constraint("DistanceY", -1, 1, 1, 3, 33.96883),
])
pocket9 = doc.addObject("PartDesign::Pocket", "Pocket008")
body3.addObject(pocket9)
pocket9.Profile = sketch13
pocket9.Length = 4
pocket9.Reversed = True
body4 = doc.addObject("PartDesign::Body", "Body003")

# Sketch on XZ plane
sketch14 = doc.addObject("Sketcher::SketchObject", "Sketch013")
body4.addObject(sketch14)
sketch14.AttachmentSupport = (doc.getObject("XZ_Plane003"), [""])
sketch14.MapMode = "FlatFace"
sketch14.AttachmentOffset = App.Placement(App.Vector(0, 0, -3), App.Rotation())
sketch14.addGeometry(Part.Circle(App.Vector(7.677742, 35.39883, 0), App.Vector(0, 0, 1), 2.75), False)
sketch14.addConstraint([
    Sketcher.Constraint("Diameter", 0, 5.5),
    Sketcher.Constraint("DistanceY", -1, 1, 0, 3, 35.39883),
    Sketcher.Constraint("DistanceX", -1, 1, 0, 3, 7.677742),
])
pad5 = doc.addObject("PartDesign::Pad", "Pad004")
body4.addObject(pad5)
pad5.Profile = sketch14
pad5.Length = 10.15
pad5.Reversed = True
body5 = doc.addObject("PartDesign::Body", "Body004")
body5.AllowCompound = True

# Sketch on XZ plane
sketch15 = doc.addObject("Sketcher::SketchObject", "Sketch014")
body5.addObject(sketch15)
sketch15.AttachmentSupport = (doc.getObject("XZ_Plane004"), [""])
sketch15.MapMode = "FlatFace"
sketch15.AttachmentOffset = App.Placement(App.Vector(0, 0, -13.15), App.Rotation())
sketch15.addGeometry([
    Part.Circle(App.Vector(-45.716588, 33.96883, 0), App.Vector(0, 0, 1), 1.6),
    Part.Circle(App.Vector(7.677742, 35.39883, 0), App.Vector(0, 0, 1), 1.6),
], False)
sketch15.addConstraint([
    Sketcher.Constraint("Equal", 0, 1),
    Sketcher.Constraint("Diameter", 0, 3.2),
    Sketcher.Constraint("DistanceY", 0, 3, 1, 3, 1.43),
    Sketcher.Constraint("DistanceX", 0, 3, -1, 1, 45.716588),
    Sketcher.Constraint("DistanceY", -1, 1, 0, 3, 33.96883),
    Sketcher.Constraint("DistanceX", 0, 3, 1, 3, 53.39433),
])
pad6 = doc.addObject("PartDesign::Pad", "Pad005")
body5.addObject(pad6)
pad6.Profile = sketch15
pad6.Length = 90.571623
doc.recompute()

body6 = doc.addObject("PartDesign::Body", "Body005")
body6.BaseFeature = body5
boolean = doc.addObject("PartDesign::Boolean", "Boolean")
body3.addObject(boolean)
boolean.Type = "Cut"
boolean.addObjects([body6])
doc.recompute()

# Sketch on XZ plane
sketch16 = doc.addObject("Sketcher::SketchObject", "Sketch015")
body3.addObject(sketch16)
sketch16.AttachmentSupport = (doc.getObject("XZ_Plane002"), [""])
sketch16.MapMode = "FlatFace"
sketch16.AttachmentOffset = App.Placement(App.Vector(0, 0, -13.15), App.Rotation())
sketch16.addGeometry(Part.Circle(App.Vector(-45.716588, 33.96883, 0), App.Vector(0, 0, 1), 2.75), False)
sketch16.addConstraint([
    Sketcher.Constraint("Diameter", 0, 5.5),
    Sketcher.Constraint("DistanceX", 0, 3, -1, 1, 45.716588),
    Sketcher.Constraint("DistanceY", -1, 1, 0, 3, 33.96883),
])
pocket10 = doc.addObject("PartDesign::Pocket", "Pocket009")
body3.addObject(pocket10)
pocket10.Profile = sketch16
pocket10.Length = 1.75
pocket10.Reversed = True
doc.recompute()

boolean2 = doc.addObject("PartDesign::Boolean", "Boolean001")
body4.addObject(boolean2)
boolean2.Type = "Cut"
boolean2.addObjects([body5])

# Sketch on XZ plane
sketch17 = doc.addObject("Sketcher::SketchObject", "Sketch016")
body4.addObject(sketch17)
sketch17.AttachmentSupport = (doc.getObject("XZ_Plane003"), [""])
sketch17.MapMode = "FlatFace"
sketch17.AttachmentOffset = App.Placement(App.Vector(0, 0, -13.15), App.Rotation())
sketch17.addGeometry(Part.Circle(App.Vector(7.677742, 35.39883, 0), App.Vector(0, 0, 1), 2.75), False)
sketch17.addConstraint([
    Sketcher.Constraint("Diameter", 0, 5.5),
    Sketcher.Constraint("DistanceY", -1, 1, 0, 3, 35.39883),
    Sketcher.Constraint("DistanceX", -1, 1, 0, 3, 7.677742),
])
pocket11 = doc.addObject("PartDesign::Pocket", "Pocket010")
body4.addObject(pocket11)
pocket11.Profile = sketch17
pocket11.Length = 1.75
pocket11.Reversed = True

doc.recompute()
